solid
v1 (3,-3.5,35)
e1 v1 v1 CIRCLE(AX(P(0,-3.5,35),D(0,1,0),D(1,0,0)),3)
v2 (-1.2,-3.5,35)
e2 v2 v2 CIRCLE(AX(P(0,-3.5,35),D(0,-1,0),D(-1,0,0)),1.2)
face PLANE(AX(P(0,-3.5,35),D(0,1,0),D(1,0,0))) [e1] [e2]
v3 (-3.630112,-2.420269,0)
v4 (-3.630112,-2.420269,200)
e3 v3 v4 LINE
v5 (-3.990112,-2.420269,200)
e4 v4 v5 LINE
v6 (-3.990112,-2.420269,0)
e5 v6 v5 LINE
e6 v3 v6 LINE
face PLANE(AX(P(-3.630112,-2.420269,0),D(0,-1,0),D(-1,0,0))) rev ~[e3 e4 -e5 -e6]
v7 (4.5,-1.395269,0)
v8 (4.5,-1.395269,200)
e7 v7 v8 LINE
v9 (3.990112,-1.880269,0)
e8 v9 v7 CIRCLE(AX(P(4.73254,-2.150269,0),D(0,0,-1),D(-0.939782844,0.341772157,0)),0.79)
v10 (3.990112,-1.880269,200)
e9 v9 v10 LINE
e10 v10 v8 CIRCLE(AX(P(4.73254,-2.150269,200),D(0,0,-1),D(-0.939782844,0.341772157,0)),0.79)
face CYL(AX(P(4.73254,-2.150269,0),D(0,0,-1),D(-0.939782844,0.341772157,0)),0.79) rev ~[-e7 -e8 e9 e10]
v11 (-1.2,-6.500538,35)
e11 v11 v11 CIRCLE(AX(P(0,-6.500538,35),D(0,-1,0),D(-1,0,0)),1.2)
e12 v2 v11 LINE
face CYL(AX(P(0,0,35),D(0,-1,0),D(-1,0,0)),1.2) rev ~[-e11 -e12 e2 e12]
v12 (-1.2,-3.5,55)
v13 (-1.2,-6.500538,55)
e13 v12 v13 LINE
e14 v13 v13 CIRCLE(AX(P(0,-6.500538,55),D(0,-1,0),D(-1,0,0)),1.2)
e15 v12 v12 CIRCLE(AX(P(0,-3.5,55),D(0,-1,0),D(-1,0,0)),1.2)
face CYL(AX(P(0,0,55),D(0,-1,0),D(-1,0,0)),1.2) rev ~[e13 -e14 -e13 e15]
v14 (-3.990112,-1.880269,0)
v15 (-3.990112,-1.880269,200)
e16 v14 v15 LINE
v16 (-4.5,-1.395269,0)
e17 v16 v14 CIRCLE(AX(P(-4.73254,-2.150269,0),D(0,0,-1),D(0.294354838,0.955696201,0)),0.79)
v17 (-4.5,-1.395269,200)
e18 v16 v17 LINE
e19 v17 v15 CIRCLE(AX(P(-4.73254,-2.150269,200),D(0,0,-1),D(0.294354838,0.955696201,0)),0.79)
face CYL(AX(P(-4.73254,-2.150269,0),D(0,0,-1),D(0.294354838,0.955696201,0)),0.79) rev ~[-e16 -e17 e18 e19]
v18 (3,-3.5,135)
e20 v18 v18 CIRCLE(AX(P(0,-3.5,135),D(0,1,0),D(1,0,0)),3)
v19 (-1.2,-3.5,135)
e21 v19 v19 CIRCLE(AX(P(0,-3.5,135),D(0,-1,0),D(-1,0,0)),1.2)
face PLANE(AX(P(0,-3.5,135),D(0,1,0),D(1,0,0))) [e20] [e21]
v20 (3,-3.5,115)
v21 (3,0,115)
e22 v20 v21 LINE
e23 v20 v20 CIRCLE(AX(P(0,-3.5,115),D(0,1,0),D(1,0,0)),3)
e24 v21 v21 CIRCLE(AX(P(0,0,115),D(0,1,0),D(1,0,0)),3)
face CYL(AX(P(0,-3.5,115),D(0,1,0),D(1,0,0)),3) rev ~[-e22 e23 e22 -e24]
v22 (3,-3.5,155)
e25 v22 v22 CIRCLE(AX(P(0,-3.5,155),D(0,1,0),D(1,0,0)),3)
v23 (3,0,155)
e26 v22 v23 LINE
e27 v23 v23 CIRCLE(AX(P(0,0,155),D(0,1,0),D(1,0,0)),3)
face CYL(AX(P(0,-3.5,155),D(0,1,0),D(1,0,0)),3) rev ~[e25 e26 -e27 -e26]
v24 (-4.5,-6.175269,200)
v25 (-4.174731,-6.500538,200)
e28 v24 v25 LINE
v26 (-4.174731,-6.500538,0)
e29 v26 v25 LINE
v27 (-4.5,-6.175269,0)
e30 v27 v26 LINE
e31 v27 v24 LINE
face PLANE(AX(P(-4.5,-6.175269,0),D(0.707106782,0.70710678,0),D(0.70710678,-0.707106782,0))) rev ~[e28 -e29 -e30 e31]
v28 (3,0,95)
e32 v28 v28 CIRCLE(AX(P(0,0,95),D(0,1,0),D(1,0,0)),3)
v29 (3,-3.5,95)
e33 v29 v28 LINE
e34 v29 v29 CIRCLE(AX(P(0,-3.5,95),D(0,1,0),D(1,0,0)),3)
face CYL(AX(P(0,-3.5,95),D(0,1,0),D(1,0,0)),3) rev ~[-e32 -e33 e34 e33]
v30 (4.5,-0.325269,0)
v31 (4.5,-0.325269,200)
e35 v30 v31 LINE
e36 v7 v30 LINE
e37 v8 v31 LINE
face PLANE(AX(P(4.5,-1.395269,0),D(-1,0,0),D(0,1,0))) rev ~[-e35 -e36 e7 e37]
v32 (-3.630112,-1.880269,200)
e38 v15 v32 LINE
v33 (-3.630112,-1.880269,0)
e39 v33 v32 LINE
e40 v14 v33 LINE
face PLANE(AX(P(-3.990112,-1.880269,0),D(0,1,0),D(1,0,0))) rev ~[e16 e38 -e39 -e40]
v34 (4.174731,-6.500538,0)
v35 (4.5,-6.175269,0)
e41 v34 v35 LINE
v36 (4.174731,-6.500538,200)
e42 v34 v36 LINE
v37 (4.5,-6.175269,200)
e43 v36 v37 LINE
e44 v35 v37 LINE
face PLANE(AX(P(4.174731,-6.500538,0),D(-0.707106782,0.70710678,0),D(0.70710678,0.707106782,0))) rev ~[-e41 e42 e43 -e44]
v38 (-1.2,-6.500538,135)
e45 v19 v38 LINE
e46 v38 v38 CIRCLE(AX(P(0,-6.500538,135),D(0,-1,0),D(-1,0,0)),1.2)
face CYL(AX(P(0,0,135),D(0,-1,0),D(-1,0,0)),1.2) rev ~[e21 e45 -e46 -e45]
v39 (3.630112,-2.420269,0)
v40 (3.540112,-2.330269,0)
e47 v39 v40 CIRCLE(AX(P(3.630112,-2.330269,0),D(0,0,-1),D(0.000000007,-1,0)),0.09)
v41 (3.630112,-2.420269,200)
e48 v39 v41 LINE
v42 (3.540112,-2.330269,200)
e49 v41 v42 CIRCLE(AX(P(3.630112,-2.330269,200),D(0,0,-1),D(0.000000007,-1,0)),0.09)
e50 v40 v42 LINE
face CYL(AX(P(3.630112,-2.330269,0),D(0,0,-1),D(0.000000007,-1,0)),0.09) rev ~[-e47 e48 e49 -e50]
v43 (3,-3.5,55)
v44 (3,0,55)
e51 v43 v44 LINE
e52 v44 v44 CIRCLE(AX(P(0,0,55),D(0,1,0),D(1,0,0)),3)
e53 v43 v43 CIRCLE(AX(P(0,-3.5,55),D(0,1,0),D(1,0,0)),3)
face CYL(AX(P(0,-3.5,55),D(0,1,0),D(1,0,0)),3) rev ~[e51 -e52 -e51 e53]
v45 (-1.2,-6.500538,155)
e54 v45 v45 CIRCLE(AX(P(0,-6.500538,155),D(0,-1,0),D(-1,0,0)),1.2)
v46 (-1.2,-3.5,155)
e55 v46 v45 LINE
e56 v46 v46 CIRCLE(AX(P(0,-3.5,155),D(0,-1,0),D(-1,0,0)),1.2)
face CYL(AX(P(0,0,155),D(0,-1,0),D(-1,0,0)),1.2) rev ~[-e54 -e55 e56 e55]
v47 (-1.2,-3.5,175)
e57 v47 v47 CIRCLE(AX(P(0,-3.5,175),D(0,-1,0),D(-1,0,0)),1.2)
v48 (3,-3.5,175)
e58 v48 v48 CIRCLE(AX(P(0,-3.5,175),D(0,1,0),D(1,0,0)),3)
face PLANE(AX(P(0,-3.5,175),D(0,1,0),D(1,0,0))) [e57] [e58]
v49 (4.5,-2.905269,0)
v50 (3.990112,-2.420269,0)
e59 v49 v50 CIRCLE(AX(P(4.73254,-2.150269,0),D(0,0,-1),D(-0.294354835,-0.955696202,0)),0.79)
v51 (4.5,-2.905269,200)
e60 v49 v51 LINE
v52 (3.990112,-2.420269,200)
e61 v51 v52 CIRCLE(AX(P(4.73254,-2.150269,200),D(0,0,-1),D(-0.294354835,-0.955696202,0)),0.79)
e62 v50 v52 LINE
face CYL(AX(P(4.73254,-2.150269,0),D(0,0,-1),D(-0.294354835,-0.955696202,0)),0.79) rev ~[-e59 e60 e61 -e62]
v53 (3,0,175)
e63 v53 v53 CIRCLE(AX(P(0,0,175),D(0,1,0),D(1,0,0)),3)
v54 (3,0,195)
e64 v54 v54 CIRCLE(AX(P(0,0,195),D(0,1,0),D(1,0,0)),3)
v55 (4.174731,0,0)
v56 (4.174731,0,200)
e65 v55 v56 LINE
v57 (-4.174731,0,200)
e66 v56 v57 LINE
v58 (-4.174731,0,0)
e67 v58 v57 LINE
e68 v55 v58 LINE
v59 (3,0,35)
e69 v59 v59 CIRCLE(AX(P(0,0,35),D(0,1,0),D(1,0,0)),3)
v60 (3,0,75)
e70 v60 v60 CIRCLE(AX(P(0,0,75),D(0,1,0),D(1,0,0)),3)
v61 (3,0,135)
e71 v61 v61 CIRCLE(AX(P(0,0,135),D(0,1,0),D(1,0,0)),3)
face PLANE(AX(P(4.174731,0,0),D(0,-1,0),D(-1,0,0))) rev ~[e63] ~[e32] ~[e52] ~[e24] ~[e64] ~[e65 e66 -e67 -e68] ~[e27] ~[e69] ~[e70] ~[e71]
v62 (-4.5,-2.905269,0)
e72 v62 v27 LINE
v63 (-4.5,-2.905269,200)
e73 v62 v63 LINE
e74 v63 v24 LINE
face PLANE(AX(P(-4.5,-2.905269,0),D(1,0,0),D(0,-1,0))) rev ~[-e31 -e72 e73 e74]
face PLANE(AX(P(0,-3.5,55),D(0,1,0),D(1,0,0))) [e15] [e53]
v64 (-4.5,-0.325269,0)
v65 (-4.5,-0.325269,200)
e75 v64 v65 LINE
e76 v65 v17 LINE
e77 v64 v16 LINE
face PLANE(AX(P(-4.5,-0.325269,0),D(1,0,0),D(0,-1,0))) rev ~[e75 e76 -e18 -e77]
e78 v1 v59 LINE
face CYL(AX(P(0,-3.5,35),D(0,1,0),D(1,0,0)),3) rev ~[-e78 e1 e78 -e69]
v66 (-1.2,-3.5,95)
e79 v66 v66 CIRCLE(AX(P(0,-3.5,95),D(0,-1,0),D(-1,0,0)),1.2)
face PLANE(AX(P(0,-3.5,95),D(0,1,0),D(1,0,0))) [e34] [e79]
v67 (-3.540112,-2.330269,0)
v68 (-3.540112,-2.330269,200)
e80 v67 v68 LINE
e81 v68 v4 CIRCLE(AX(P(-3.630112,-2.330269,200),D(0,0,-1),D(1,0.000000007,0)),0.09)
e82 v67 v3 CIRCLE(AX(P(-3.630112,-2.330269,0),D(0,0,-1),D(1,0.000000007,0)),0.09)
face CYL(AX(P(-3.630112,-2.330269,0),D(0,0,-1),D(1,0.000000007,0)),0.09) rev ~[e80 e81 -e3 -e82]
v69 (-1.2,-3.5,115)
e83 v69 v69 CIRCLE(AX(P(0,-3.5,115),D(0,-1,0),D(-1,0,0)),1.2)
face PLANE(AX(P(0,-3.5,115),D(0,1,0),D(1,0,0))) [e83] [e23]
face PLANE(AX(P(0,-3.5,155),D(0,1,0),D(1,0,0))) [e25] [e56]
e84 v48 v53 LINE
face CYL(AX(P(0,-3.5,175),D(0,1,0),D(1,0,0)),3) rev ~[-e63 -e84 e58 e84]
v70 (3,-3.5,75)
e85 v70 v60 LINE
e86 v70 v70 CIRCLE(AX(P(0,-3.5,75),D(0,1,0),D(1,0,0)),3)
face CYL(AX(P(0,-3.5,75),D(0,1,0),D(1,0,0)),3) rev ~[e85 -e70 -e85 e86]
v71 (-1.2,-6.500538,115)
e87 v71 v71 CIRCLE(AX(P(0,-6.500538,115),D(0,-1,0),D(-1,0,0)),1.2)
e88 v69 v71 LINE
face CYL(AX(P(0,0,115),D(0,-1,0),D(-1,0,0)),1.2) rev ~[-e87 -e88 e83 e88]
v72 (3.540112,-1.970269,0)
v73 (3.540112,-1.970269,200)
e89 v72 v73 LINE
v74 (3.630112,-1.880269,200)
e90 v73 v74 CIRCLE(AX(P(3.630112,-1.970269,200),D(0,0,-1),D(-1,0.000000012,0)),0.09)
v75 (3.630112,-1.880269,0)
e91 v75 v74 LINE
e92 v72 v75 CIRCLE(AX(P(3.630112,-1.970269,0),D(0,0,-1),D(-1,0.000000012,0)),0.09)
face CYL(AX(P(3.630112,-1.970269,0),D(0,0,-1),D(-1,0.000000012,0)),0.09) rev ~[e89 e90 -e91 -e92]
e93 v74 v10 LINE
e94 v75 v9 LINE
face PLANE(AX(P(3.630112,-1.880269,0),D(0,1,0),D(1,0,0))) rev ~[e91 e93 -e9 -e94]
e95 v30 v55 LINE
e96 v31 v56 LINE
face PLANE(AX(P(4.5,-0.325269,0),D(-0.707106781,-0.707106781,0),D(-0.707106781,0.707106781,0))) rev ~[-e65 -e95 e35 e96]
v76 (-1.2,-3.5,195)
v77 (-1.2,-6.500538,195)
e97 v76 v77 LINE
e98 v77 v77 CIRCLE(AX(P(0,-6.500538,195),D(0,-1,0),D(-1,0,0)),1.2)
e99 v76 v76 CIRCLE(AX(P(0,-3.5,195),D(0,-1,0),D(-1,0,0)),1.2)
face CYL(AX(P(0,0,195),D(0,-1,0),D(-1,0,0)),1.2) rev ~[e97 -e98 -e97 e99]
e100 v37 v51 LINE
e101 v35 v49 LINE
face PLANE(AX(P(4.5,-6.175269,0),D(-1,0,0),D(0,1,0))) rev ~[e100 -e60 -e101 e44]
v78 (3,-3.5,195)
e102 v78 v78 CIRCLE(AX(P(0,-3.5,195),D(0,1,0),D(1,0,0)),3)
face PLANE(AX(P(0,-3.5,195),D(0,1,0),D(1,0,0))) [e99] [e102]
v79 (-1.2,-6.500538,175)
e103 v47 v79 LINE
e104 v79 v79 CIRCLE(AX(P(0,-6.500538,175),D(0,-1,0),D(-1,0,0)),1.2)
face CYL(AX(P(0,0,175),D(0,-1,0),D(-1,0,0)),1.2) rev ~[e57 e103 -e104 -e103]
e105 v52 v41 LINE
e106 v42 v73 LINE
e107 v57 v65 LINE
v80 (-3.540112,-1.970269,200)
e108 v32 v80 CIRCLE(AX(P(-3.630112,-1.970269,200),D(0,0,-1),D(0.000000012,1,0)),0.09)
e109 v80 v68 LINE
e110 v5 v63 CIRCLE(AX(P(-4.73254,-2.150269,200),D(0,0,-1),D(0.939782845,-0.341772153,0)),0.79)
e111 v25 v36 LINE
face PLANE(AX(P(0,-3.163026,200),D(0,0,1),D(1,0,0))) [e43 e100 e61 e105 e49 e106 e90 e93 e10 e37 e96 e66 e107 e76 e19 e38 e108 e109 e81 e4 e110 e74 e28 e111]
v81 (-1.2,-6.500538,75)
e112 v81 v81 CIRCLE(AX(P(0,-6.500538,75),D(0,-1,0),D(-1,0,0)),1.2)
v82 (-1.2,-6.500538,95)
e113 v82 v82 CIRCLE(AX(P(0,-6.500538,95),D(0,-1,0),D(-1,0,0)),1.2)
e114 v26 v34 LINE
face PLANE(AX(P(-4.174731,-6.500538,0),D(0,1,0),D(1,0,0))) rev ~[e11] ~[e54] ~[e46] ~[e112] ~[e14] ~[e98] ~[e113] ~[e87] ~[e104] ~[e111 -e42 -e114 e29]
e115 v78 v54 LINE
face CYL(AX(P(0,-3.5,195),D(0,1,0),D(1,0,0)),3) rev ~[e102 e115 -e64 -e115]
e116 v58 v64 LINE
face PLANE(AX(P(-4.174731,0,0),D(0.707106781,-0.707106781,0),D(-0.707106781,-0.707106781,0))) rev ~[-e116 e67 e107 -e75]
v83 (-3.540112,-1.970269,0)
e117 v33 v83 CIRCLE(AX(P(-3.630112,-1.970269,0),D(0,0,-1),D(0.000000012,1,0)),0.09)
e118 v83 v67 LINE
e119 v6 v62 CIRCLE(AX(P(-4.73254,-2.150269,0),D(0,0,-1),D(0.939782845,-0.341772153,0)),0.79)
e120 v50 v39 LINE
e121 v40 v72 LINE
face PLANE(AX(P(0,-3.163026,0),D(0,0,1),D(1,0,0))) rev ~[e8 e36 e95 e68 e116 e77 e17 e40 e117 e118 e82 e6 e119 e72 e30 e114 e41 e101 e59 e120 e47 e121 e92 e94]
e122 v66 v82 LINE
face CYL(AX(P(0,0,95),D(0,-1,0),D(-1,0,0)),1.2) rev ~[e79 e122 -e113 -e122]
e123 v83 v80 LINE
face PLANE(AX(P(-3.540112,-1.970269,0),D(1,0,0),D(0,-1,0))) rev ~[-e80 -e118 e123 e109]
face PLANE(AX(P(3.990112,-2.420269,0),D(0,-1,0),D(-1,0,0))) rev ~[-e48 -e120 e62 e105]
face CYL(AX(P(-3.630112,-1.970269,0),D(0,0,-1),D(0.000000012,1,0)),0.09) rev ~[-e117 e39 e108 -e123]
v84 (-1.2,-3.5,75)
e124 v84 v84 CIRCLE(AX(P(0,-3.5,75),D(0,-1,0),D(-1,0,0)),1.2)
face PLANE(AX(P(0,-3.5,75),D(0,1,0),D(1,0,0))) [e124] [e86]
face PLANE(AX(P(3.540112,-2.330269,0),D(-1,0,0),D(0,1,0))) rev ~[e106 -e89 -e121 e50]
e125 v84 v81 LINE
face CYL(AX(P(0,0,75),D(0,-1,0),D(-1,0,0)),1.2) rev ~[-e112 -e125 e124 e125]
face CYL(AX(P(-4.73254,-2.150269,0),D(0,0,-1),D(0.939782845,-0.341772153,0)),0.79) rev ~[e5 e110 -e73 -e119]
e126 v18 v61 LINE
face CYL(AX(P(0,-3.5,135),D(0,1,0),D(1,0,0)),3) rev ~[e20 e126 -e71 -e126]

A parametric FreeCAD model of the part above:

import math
import FreeCAD as App
import Part
import Sketcher
Q = App.Units.Quantity

doc = App.newDocument("Part")
body = doc.addObject("PartDesign::Body", "Body")

sketch1 = doc.addObject("Sketcher::SketchObject", "Sketch")
body.addObject(sketch1)
sketch1.AttachmentSupport = (doc.XY_Plane, [""])
sketch1.MapMode = "FlatFace"
sketch1.addGeometry(Part.LineSegment(App.Vector(-4.5, -2.91, 0), App.Vector(-4.5, -6.18, 0)), False)
sketch1.addGeometry(Part.LineSegment(App.Vector(-4.5, -6.18, 0), App.Vector(-4.17, -6.5, 0)), False)
sketch1.addGeometry(Part.LineSegment(App.Vector(-4.17, -6.5, 0), App.Vector(4.17, -6.5, 0)), False)
sketch1.addGeometry(Part.LineSegment(App.Vector(4.17, -6.5, 0), App.Vector(4.5, -6.18, 0)), False)
sketch1.addGeometry(Part.LineSegment(App.Vector(4.5, -6.18, 0), App.Vector(4.5, -2.91, 0)), False)
sketch1.addGeometry(Part.ArcOfCircle(Part.Circle(App.Vector(4.73, -2.15, 0), App.Vector(0, 0, 1), 0.79), math.radians(-160), math.radians(-107)), False)
sketch1.addGeometry(Part.LineSegment(App.Vector(3.99, -2.42, 0), App.Vector(3.63, -2.42, 0)), False)
sketch1.addGeometry(Part.ArcOfCircle(Part.Circle(App.Vector(3.63, -2.33, 0), App.Vector(0, 0, 1), 0.09), math.radians(180), math.radians(270)), False)
sketch1.addGeometry(Part.LineSegment(App.Vector(3.54, -2.33, 0), App.Vector(3.54, -1.97, 0)), False)
sketch1.addGeometry(Part.ArcOfCircle(Part.Circle(App.Vector(3.63, -1.97, 0), App.Vector(0, 0, 1), 0.09), math.radians(90), math.radians(180)), False)
sketch1.addGeometry(Part.LineSegment(App.Vector(3.63, -1.88, 0), App.Vector(3.99, -1.88, 0)), False)
sketch1.addGeometry(Part.ArcOfCircle(Part.Circle(App.Vector(4.73, -2.15, 0), App.Vector(0, 0, 1), 0.79), math.radians(107), math.radians(160)), False)
sketch1.addGeometry(Part.LineSegment(App.Vector(4.5, -1.4, 0), App.Vector(4.5, -0.33, 0)), False)
sketch1.addGeometry(Part.LineSegment(App.Vector(4.5, -0.33, 0), App.Vector(4.17, 0, 0)), False)
sketch1.addGeometry(Part.LineSegment(App.Vector(4.17, 0, 0), App.Vector(-4.17, 0, 0)), False)
sketch1.addGeometry(Part.LineSegment(App.Vector(-4.17, 0, 0), App.Vector(-4.5, -0.33, 0)), False)
sketch1.addGeometry(Part.LineSegment(App.Vector(-4.5, -0.33, 0), App.Vector(-4.5, -1.4, 0)), False)
sketch1.addGeometry(Part.ArcOfCircle(Part.Circle(App.Vector(-4.73, -2.15, 0), App.Vector(0, 0, 1), 0.79), math.radians(20), math.radians(73)), False)
sketch1.addGeometry(Part.LineSegment(App.Vector(-3.99, -1.88, 0), App.Vector(-3.63, -1.88, 0)), False)
sketch1.addGeometry(Part.ArcOfCircle(Part.Circle(App.Vector(-3.63, -1.97, 0), App.Vector(0, 0, 1), 0.09), math.radians(0), math.radians(90)), False)
sketch1.addGeometry(Part.LineSegment(App.Vector(-3.54, -1.97, 0), App.Vector(-3.54, -2.33, 0)), False)
sketch1.addGeometry(Part.ArcOfCircle(Part.Circle(App.Vector(-3.63, -2.33, 0), App.Vector(0, 0, 1), 0.09), math.radians(-90), math.radians(0)), False)
sketch1.addGeometry(Part.LineSegment(App.Vector(-3.63, -2.42, 0), App.Vector(-3.99, -2.42, 0)), False)
sketch1.addGeometry(Part.ArcOfCircle(Part.Circle(App.Vector(-4.73, -2.15, 0), App.Vector(0, 0, 1), 0.79), math.radians(-73), math.radians(-20)), False)
sketch1.addConstraint(Sketcher.Constraint("Coincident", 0, 2, 1, 1))
sketch1.addConstraint(Sketcher.Constraint("Coincident", 1, 2, 2, 1))
sketch1.addConstraint(Sketcher.Constraint("Coincident", 2, 2, 3, 1))
sketch1.addConstraint(Sketcher.Constraint("Coincident", 3, 2, 4, 1))
sketch1.addConstraint(Sketcher.Constraint("Coincident", 4, 2, 5, 2))
sketch1.addConstraint(Sketcher.Constraint("Coincident", 5, 1, 6, 1))
sketch1.addConstraint(Sketcher.Constraint("Tangent", 6, 2, 7, 2))
sketch1.addConstraint(Sketcher.Constraint("Tangent", 7, 1, 8, 1))
sketch1.addConstraint(Sketcher.Constraint("Tangent", 8, 2, 9, 2))
sketch1.addConstraint(Sketcher.Constraint("Tangent", 9, 1, 10, 1))
sketch1.addConstraint(Sketcher.Constraint("Coincident", 10, 2, 11, 2))
sketch1.addConstraint(Sketcher.Constraint("Coincident", 11, 1, 12, 1))
sketch1.addConstraint(Sketcher.Constraint("Coincident", 12, 2, 13, 1))
sketch1.addConstraint(Sketcher.Constraint("Coincident", 13, 2, 14, 1))
sketch1.addConstraint(Sketcher.Constraint("Coincident", 14, 2, 15, 1))
sketch1.addConstraint(Sketcher.Constraint("Coincident", 15, 2, 16, 1))
sketch1.addConstraint(Sketcher.Constraint("Coincident", 16, 2, 17, 2))
sketch1.addConstraint(Sketcher.Constraint("Coincident", 17, 1, 18, 1))
sketch1.addConstraint(Sketcher.Constraint("Tangent", 18, 2, 19, 2))
sketch1.addConstraint(Sketcher.Constraint("Tangent", 19, 1, 20, 1))
sketch1.addConstraint(Sketcher.Constraint("Tangent", 20, 2, 21, 2))
sketch1.addConstraint(Sketcher.Constraint("Tangent", 21, 1, 22, 1))
sketch1.addConstraint(Sketcher.Constraint("Coincident", 22, 2, 23, 2))
sketch1.addConstraint(Sketcher.Constraint("Coincident", 23, 1, 0, 1))
sketch1.addConstraint(Sketcher.Constraint("Vertical", 0))
sketch1.addConstraint(Sketcher.Constraint("Horizontal", 2))
sketch1.addConstraint(Sketcher.Constraint("Vertical", 4))
sketch1.addConstraint(Sketcher.Constraint("Horizontal", 6))
sketch1.addConstraint(Sketcher.Constraint("Vertical", 8))
sketch1.addConstraint(Sketcher.Constraint("Horizontal", 10))
sketch1.addConstraint(Sketcher.Constraint("Vertical", 12))
sketch1.addConstraint(Sketcher.Constraint("Horizontal", 14))
sketch1.addConstraint(Sketcher.Constraint("Vertical", 16))
sketch1.addConstraint(Sketcher.Constraint("Horizontal", 18))
sketch1.addConstraint(Sketcher.Constraint("Vertical", 20))
sketch1.addConstraint(Sketcher.Constraint("Horizontal", 22))
sketch1.addConstraint(Sketcher.Constraint("Coincident", 11, 3, 5, 3))
sketch1.addConstraint(Sketcher.Constraint("Coincident", 23, 3, 17, 3))
sketch1.addConstraint(Sketcher.Constraint("Equal", 7, 9))
sketch1.addConstraint(Sketcher.Constraint("Equal", 5, 11))
sketch1.addConstraint(Sketcher.Constraint("Equal", 11, 17))
sketch1.addConstraint(Sketcher.Constraint("Equal", 9, 19))
sketch1.addConstraint(Sketcher.Constraint("Equal", 19, 21))
sketch1.addConstraint(Sketcher.Constraint("Equal", 17, 23))
sketch1.addConstraint(Sketcher.Constraint("Symmetric", 13, 2, 14, 2, -1, 1))
sketch1.addConstraint(Sketcher.Constraint("Symmetric", 5, 3, 17, 3, -2))
sketch1.addConstraint(Sketcher.Constraint("Symmetric", 9, 3, 19, 3, -2))
sketch1.addConstraint(Sketcher.Constraint("Symmetric", 0, 2, 3, 2, -2))
sketch1.addConstraint(Sketcher.Constraint("Symmetric", 12, 2, 15, 2, -2))
sketch1.addConstraint(Sketcher.Constraint("Perpendicular", 1, 3))
sketch1.addConstraint(Sketcher.Constraint("Perpendicular", 3, 13))
sketch1.addConstraint(Sketcher.Constraint("Perpendicular", 13, 15))
sketch1.addConstraint(Sketcher.Constraint("Horizontal", 7, 3, 21, 3))
sketch1.addConstraint(Sketcher.Constraint("Vertical", 5, 1, 10, 2))
sketch1.addConstraint(Sketcher.Constraint("Vertical", 4, 2, 11, 1))
sketch1.addConstraint(Sketcher.Constraint("Vertical", 2, 2, 13, 2))
sketch1.addConstraint(Sketcher.Constraint("Equal", 22, 8))
sketch1.addConstraint(Sketcher.Constraint("Radius", 5, Q("0.79 mm")))
sketch1.addConstraint(Sketcher.Constraint("Radius", 7, Q("0.09 mm")))
sketch1.addConstraint(Sketcher.Constraint("DistanceX", 6, 2, 6, 1, Q("0.36 mm")))
sketch1.addConstraint(Sketcher.Constraint("DistanceY", 0, 2, 0, 1, Q("3.27 mm")))
sketch1.addConstraint(Sketcher.Constraint("DistanceY", 12, 1, 12, 2, Q("1.07 mm")))
sketch1.addConstraint(Sketcher.Constraint("DistanceX", 0, 2, -1, 1, Q("4.5 mm")))
sketch1.addConstraint(Sketcher.Constraint("Distance", 1, Q("0.46 mm")))
sketch1.addConstraint(Sketcher.Constraint("DistanceY", 0, 2, 21, 3, Q("3.845 mm")))
pad1 = doc.addObject("PartDesign::Pad", "Pad")
body.addObject(pad1)
pad1.Profile = sketch1
pad1.Length = 200

sketch2 = doc.addObject("Sketcher::SketchObject", "Sketch001")
body.addObject(sketch2)
sketch2.AttachmentSupport = (doc.XZ_Plane, [""])
sketch2.MapMode = "FlatFace"
sketch2.addGeometry(Part.Circle(App.Vector(0, 195, 0), App.Vector(0, 0, 1), 1.2), False)
sketch2.addConstraint(Sketcher.Constraint("PointOnObject", 0, 3, -2))
sketch2.addConstraint(Sketcher.Constraint("Diameter", 0, Q("2.4 mm")))
sketch2.addConstraint(Sketcher.Constraint("DistanceY", -1, 1, 0, 3, Q("195 mm")))
doc.recompute()
hole = doc.addObject("PartDesign::Hole", "Hole")
body.addObject(hole)
hole.Profile = sketch2
hole.ThreadType = "None"
hole.Diameter = 2.4
hole.DepthType = "ThroughAll"
hole.HoleCutType = "Counterbore"
hole.HoleCutDiameter = 6
hole.HoleCutDepth = 3.5
hole.Reversed = True
doc.recompute()

linearpattern = doc.addObject("PartDesign::LinearPattern", "LinearPattern")
body.addObject(linearpattern)
linearpattern.Originals = [hole]
linearpattern.Direction = (doc.Z_Axis, [""])
linearpattern.Mode = "offset"
linearpattern.Offset = 20
linearpattern.Occurrences = 9
linearpattern.Reversed = True
body.Tip = linearpattern

doc.recompute()
